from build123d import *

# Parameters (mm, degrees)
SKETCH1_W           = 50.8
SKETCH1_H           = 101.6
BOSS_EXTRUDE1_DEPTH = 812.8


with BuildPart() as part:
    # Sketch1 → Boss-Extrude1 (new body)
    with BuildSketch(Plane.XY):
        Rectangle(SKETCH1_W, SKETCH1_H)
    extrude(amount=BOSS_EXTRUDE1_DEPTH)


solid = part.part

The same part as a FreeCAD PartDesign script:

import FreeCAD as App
import Part
import Sketcher
from FreeCAD import Vector
Q = App.Units.Quantity

doc = App.newDocument("Part")
body = doc.addObject("PartDesign::Body", "Body")

sketch1 = body.newObject("Sketcher::SketchObject", "Sketch")
sketch1.AttachmentSupport = (doc.getObject("XY_Plane"), [""])
sketch1.MapMode = "FlatFace"
sketch1.addGeometry([
    Part.LineSegment(Vector(-25, 51, 0), Vector(-25, -51, 0)),
    Part.LineSegment(Vector(-25, -51, 0), Vector(25, -51, 0)),
    Part.LineSegment(Vector(25, -51, 0), Vector(25, 51, 0)),
    Part.LineSegment(Vector(25, 51, 0), Vector(-25, 51, 0)),
], False)
sketch1.addConstraint([
    Sketcher.Constraint("Coincident", 0, 2, 1, 1),
    Sketcher.Constraint("Coincident", 1, 2, 2, 1),
    Sketcher.Constraint("Coincident", 2, 2, 3, 1),
    Sketcher.Constraint("Coincident", 3, 2, 0, 1),
    Sketcher.Constraint("Vertical", 0),
    Sketcher.Constraint("Horizontal", 1),
    Sketcher.Constraint("Vertical", 2),
    Sketcher.Constraint("Horizontal", 3),
    Sketcher.Constraint("Symmetric", 0, 2, 2, 2, -1, 1),
    Sketcher.Constraint("DistanceX", 1, 1, 1, 2, Q("2 in")),
    Sketcher.Constraint("DistanceY", 0, 2, 0, 1, Q("4 in")),
])
pad1 = body.newObject("PartDesign::Pad", "Pad")
pad1.Profile = sketch1
pad1.Length = Q("32 in")

doc.recompute()
